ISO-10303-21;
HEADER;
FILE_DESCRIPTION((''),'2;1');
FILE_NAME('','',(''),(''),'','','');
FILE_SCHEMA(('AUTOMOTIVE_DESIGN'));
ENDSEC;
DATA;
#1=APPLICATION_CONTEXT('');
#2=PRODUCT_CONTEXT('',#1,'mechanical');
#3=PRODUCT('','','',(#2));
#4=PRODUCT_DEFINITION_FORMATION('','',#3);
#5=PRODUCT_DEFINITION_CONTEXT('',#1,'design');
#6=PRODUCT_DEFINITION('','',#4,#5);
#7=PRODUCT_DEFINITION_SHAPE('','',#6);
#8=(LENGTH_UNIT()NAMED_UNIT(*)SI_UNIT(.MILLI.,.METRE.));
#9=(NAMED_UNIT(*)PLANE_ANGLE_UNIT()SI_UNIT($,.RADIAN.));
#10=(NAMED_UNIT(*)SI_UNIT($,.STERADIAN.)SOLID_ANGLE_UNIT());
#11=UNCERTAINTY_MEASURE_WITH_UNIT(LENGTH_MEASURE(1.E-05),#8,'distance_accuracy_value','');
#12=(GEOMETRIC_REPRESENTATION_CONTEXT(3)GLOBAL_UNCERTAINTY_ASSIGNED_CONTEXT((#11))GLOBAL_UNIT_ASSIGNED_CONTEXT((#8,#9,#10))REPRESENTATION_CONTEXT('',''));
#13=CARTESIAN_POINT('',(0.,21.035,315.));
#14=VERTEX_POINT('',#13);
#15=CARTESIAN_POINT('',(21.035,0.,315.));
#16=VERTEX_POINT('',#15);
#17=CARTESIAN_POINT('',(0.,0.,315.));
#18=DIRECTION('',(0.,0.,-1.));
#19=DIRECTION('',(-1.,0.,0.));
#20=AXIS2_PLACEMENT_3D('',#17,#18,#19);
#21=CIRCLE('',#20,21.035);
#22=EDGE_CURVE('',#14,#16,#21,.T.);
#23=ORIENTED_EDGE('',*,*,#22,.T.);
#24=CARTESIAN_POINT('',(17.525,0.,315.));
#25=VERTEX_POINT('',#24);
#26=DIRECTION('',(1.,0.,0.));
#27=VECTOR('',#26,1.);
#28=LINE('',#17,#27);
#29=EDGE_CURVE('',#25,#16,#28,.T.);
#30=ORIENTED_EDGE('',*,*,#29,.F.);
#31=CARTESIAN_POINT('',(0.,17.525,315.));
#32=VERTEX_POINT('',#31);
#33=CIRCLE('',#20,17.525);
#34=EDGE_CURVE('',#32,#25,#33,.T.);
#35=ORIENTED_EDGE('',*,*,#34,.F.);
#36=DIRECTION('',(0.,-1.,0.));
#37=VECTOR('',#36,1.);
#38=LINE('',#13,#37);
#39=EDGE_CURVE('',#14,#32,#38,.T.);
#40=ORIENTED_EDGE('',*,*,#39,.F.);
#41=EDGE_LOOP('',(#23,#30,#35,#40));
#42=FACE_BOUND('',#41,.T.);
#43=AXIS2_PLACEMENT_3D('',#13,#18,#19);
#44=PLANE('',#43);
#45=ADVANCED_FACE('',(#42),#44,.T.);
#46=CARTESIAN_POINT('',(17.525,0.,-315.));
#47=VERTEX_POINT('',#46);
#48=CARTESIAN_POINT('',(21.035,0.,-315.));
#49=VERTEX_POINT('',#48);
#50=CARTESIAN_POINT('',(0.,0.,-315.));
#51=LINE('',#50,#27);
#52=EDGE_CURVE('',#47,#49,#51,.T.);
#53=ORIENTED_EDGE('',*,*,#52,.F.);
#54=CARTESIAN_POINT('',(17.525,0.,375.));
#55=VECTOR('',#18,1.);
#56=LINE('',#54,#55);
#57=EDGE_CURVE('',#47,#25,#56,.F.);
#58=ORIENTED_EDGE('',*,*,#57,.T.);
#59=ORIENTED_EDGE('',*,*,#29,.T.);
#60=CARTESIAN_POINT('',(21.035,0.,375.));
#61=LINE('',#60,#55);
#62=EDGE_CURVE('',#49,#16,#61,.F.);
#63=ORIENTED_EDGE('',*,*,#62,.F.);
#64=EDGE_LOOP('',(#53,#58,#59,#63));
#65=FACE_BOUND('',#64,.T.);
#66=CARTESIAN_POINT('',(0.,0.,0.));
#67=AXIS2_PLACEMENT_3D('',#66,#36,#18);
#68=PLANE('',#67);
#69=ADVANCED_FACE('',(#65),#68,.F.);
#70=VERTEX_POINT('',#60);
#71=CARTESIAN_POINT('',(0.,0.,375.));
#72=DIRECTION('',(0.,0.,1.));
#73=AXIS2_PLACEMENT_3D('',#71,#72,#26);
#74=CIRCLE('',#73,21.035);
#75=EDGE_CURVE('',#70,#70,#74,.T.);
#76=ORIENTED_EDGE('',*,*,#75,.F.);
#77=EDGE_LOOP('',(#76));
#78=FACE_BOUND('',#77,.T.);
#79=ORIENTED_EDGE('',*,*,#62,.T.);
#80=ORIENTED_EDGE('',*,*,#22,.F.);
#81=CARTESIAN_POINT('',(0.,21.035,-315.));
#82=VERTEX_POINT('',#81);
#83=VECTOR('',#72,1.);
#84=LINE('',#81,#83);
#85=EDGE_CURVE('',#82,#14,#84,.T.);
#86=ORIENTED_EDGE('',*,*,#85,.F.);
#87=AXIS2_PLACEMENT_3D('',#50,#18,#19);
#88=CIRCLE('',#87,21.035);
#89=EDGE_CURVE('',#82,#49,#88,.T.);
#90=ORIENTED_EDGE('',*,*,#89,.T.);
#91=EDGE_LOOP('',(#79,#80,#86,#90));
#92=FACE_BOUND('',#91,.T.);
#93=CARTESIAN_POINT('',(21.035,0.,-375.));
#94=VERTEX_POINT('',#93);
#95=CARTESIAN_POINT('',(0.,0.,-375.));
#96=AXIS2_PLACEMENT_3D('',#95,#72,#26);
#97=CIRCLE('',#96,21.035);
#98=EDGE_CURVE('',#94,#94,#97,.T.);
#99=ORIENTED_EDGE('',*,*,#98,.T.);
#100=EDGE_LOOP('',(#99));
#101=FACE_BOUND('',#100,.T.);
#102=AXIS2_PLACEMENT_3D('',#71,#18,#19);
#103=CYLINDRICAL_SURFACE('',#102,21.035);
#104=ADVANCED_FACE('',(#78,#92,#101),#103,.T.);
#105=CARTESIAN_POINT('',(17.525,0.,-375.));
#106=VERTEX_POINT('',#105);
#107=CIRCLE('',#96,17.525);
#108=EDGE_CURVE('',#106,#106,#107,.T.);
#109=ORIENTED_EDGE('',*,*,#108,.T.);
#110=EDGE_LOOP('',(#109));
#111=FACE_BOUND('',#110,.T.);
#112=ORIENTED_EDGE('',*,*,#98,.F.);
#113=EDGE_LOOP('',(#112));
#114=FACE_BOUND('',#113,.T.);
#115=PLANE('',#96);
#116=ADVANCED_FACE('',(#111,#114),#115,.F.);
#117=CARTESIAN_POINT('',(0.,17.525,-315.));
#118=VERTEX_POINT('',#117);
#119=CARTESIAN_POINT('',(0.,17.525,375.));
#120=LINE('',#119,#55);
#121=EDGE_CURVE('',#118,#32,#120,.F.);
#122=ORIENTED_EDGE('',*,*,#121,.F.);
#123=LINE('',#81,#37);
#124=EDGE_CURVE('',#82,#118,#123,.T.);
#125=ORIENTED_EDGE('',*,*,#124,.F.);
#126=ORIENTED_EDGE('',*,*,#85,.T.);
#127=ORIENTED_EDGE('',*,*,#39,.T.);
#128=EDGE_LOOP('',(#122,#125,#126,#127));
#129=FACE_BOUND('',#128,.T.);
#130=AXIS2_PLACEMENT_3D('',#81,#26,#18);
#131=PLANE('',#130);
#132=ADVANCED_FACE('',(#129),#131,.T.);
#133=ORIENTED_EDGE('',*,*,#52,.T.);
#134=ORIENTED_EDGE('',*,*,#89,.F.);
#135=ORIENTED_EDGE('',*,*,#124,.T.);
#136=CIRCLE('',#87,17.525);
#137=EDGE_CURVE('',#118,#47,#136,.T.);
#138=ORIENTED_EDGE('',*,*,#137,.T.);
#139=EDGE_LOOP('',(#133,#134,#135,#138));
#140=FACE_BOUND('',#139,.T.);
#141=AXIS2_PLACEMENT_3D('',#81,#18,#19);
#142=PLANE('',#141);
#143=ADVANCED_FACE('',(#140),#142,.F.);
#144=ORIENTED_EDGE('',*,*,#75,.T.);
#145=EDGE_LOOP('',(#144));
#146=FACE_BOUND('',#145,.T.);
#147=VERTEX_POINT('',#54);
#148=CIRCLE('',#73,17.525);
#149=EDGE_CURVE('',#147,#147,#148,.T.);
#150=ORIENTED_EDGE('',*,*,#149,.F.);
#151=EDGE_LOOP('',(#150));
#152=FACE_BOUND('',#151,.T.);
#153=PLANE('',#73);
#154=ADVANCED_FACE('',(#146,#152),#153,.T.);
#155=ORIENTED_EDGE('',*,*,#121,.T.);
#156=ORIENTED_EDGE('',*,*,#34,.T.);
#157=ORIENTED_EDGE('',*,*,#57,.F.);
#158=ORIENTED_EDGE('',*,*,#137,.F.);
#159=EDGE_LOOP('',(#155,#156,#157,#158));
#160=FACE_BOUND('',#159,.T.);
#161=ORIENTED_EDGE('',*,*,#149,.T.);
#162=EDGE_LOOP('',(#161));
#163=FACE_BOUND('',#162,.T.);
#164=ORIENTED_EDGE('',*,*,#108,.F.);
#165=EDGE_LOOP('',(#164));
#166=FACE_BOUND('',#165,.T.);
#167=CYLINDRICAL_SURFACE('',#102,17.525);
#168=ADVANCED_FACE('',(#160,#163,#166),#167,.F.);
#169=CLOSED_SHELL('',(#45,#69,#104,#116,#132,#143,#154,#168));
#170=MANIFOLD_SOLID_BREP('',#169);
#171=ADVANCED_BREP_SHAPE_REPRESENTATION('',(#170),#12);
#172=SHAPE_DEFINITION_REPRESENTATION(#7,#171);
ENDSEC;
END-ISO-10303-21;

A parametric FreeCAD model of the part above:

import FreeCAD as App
import Part
import Sketcher

V = App.Vector
Q = App.Units.Quantity


def add_polygon(sketch, points):
    """Adds a closed chain of lines whose ends are joined by coincident constraints."""
    first, n = sketch.GeometryCount, len(points)
    for a, b in zip(points, points[1:] + points[:1]):
        sketch.addGeometry(Part.LineSegment(App.Vector(*a, 0), App.Vector(*b, 0)), False)
    for i in range(n):
        sketch.addConstraint(Sketcher.Constraint("Coincident", first + i, 2, first + (i + 1) % n, 1))

doc = App.newDocument("Part")
body = doc.addObject("PartDesign::Body", "Body")

sketch1 = body.newObject("Sketcher::SketchObject", "Sketch")
sketch1.AttachmentSupport = (doc.getObject("XY_Plane"), [""])
sketch1.MapMode = "FlatFace"
sketch1.addGeometry(Part.Circle(V(0, 0, 0), V(0, 0, 1), 21), False)
sketch1.addGeometry(Part.Circle(V(0, 0, 0), V(0, 0, 1), 18), False)
sketch1.addConstraint(Sketcher.Constraint("Coincident", 0, 3, -1, 1))
sketch1.addConstraint(Sketcher.Constraint("Coincident", 1, 3, -1, 1))
sketch1.addConstraint(Sketcher.Constraint("Diameter", 0, Q("42.07 mm")))
sketch1.addConstraint(Sketcher.Constraint("Diameter", 1, Q("35.05 mm")))
pad1 = body.newObject("PartDesign::Pad", "Pad")
pad1.Profile = sketch1
pad1.Length = 750
pad1.Midplane = True

sketch2 = body.newObject("Sketcher::SketchObject", "Sketch001")
sketch2.AttachmentSupport = (doc.getObject("XZ_Plane"), [""])
sketch2.MapMode = "FlatFace"
add_polygon(sketch2, [(0, -315), (0, 315), (50, 315), (50, -315)])
sketch2.addConstraint(Sketcher.Constraint("Vertical", 0))
sketch2.addConstraint(Sketcher.Constraint("Horizontal", 1))
sketch2.addConstraint(Sketcher.Constraint("Vertical", 2))
sketch2.addConstraint(Sketcher.Constraint("Horizontal", 3))
sketch2.addConstraint(Sketcher.Constraint("Symmetric", 0, 2, 3, 2, -1, 1))
sketch2.addConstraint(Sketcher.Constraint("DistanceX", 1, 1, 1, 2, Q("50 mm")))
sketch2.addConstraint(Sketcher.Constraint("DistanceY", 0, 1, 0, 2, Q("630 mm")))
pocket1 = body.newObject("PartDesign::Pocket", "Pocket")
pocket1.Profile = sketch2
pocket1.Type = "ThroughAll"

doc.recompute()
